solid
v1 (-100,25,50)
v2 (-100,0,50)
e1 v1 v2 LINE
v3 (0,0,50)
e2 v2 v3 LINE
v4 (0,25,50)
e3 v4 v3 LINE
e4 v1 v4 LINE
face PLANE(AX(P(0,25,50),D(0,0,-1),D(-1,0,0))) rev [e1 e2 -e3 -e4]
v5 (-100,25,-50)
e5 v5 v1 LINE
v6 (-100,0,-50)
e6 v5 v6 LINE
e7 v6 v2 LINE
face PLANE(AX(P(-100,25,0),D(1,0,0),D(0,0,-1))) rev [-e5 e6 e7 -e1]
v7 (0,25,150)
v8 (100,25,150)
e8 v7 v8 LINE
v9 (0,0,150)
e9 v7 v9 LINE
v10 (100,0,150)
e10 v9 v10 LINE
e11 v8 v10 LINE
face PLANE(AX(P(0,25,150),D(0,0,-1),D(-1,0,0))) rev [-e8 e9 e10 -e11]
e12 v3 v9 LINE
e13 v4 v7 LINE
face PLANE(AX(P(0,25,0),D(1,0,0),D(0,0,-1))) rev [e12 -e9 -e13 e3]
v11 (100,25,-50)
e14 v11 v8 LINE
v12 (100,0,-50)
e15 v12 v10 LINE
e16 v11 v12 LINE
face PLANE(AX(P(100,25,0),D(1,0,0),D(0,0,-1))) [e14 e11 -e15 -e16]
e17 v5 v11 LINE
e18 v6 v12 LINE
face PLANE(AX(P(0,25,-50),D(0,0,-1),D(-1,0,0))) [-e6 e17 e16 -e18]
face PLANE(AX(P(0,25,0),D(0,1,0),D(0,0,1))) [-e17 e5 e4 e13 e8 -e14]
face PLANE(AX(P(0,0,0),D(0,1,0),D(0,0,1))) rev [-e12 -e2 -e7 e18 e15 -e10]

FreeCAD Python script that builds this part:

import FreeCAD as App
import Part
import Sketcher
from FreeCAD import Vector

doc = App.newDocument("Part")
params = doc.addObject("Spreadsheet::Sheet", "Params")
for row, (alias, value) in enumerate([
    ("sketch1_width", "100 mm"),
    ("pad1_length", "25 mm"),
], start=1):
    params.set(f"A{row}", alias)
    params.set(f"B{row}", "=" + value)
    params.setAlias(f"B{row}", alias)

body = doc.addObject("PartDesign::Body", "Body")

sketch1 = body.newObject("Sketcher::SketchObject", "Sketch")
sketch1.AttachmentSupport = (doc.getObject("XZ_Plane"), [""])
sketch1.MapMode = "FlatFace"
sketch1.addGeometry([
    Part.LineSegment(Vector(0, 50, 0), Vector(0, 150, 0)),
    Part.LineSegment(Vector(0, 150, 0), Vector(100, 150, 0)),
    Part.LineSegment(Vector(100, 150, 0), Vector(100, -50, 0)),
    Part.LineSegment(Vector(100, -50, 0), Vector(-100, -50, 0)),
    Part.LineSegment(Vector(-100, -50, 0), Vector(-100, 50, 0)),
    Part.LineSegment(Vector(-100, 50, 0), Vector(0, 50, 0)),
], False)
sketch1.addConstraint([
    Sketcher.Constraint("Coincident", 0, 2, 1, 1),
    Sketcher.Constraint("Coincident", 1, 2, 2, 1),
    Sketcher.Constraint("Coincident", 2, 2, 3, 1),
    Sketcher.Constraint("Coincident", 3, 2, 4, 1),
    Sketcher.Constraint("Coincident", 4, 2, 5, 1),
    Sketcher.Constraint("Coincident", 5, 2, 0, 1),
    Sketcher.Constraint("Vertical", 0),
    Sketcher.Constraint("Horizontal", 1),
    Sketcher.Constraint("Vertical", 2),
    Sketcher.Constraint("Horizontal", 3),
    Sketcher.Constraint("Vertical", 4),
    Sketcher.Constraint("Horizontal", 5),
    Sketcher.Constraint("Symmetric", 2, 2, 4, 2, -1, 1),
    Sketcher.Constraint("PointOnObject", 0, 2, -2),
    Sketcher.Constraint("Equal", 5, 0),
    Sketcher.Constraint("Equal", 3, 2),
    Sketcher.Constraint("DistanceX", 1, 1, 1, 2, 100.0),
])
sketch1.setExpression("Constraints[16]", "Params.sketch1_width")
pad1 = body.newObject("PartDesign::Pad", "Pad")
pad1.Profile = sketch1
pad1.setExpression("Length", "Params.pad1_length")
pad1.Reversed = True

doc.recompute()
